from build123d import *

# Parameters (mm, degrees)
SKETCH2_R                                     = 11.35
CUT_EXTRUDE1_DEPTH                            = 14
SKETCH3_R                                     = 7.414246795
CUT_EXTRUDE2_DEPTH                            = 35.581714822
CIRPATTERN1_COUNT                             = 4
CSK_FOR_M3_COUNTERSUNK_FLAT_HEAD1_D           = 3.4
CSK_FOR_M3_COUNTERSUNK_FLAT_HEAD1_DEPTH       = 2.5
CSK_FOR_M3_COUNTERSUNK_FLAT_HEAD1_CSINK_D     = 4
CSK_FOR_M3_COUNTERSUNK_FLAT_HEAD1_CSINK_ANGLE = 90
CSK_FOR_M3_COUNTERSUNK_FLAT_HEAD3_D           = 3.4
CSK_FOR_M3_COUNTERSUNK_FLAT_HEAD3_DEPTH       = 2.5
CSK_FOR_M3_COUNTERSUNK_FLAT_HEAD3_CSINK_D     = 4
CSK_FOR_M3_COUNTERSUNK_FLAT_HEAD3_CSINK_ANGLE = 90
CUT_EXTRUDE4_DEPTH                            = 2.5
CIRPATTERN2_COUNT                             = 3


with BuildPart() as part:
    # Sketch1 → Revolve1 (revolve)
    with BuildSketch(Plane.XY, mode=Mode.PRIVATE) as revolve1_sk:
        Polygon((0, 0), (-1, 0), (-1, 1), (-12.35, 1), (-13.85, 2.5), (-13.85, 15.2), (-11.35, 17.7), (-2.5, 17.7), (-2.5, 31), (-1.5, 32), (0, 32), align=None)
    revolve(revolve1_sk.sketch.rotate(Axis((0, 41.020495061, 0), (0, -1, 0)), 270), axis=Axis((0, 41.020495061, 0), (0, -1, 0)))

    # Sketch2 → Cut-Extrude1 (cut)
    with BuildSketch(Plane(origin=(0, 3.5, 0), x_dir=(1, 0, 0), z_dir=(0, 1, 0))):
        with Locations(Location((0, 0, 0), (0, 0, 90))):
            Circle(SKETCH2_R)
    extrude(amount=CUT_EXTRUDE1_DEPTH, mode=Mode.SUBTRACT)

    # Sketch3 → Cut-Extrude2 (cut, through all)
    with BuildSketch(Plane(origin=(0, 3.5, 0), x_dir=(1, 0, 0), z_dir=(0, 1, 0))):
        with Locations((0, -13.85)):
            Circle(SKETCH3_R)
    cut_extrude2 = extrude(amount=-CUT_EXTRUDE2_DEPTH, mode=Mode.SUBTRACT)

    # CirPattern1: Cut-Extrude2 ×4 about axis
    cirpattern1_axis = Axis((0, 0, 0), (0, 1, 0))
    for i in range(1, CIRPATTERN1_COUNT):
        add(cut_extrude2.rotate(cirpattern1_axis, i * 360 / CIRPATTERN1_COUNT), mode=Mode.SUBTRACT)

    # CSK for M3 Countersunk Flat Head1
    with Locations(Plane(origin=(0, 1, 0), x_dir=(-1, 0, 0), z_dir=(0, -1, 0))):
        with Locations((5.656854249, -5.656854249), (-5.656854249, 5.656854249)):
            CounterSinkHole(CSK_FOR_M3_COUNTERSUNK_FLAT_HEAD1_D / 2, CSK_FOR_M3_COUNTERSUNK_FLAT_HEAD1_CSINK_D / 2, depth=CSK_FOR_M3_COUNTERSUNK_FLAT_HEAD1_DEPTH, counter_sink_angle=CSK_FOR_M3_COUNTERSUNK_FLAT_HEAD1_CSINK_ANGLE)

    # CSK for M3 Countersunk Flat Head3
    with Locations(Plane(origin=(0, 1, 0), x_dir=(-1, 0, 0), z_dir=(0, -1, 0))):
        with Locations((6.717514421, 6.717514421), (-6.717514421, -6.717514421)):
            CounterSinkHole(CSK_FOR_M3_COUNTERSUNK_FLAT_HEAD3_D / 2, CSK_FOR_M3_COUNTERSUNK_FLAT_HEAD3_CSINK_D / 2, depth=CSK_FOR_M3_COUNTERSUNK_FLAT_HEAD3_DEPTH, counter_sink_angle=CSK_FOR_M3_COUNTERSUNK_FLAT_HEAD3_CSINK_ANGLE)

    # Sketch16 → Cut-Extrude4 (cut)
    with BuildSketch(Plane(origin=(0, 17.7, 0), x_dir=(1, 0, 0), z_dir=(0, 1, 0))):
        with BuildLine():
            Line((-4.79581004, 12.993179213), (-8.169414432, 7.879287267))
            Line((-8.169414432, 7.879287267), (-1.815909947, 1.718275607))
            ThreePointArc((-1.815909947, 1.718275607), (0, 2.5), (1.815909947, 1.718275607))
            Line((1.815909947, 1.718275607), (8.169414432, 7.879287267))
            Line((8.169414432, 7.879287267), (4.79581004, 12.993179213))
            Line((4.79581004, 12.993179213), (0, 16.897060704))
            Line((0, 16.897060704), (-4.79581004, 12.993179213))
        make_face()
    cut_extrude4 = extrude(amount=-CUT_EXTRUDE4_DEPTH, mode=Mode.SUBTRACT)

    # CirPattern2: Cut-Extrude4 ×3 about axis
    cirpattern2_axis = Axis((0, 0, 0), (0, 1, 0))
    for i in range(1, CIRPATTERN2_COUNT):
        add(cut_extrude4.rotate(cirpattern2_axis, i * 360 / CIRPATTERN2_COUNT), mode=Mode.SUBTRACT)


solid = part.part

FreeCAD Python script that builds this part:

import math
import FreeCAD as App
import Part
import Sketcher
Q = App.Units.Quantity


def add_polygon(sketch, points):
    """Adds a closed chain of lines whose ends are joined by coincident constraints."""
    first, n = sketch.GeometryCount, len(points)
    for a, b in zip(points, points[1:] + points[:1]):
        sketch.addGeometry(Part.LineSegment(App.Vector(*a, 0), App.Vector(*b, 0)), False)
    for i in range(n):
        sketch.addConstraint(Sketcher.Constraint("Coincident", first + i, 2, first + (i + 1) % n, 1))

doc = App.newDocument("Part")
params = doc.addObject("Spreadsheet::Sheet", "Params")
for row, (alias, value) in enumerate([
    ("sketch1_width", "1 mm"),
    ("sketch1_height", "32 mm"),
    ("sketch1_width2", "1.5 mm"),
    ("sketch1_height2", "13.3 mm"),
    ("sketch1_height3", "12.7 mm"),
    ("revolution_angle", "360 deg"),
    ("sketch2_diameter", "22.7 mm"),
    ("pocket1_length", "14 mm"),
    ("sketch4_diameter", "3.4 mm"),
    ("hole_diameter", "3.4 mm"),
    ("hole_depth", "2.5 mm"),
    ("hole_csink_diameter", "4 mm"),
    ("sketch5_diameter", "3.4 mm"),
    ("hole2_diameter", "3.4 mm"),
    ("hole2_depth", "2.5 mm"),
    ("hole2_csink_diameter", "4 mm"),
    ("sketch6_radius", "2.5 mm"),
    ("pocket3_length", "2.5 mm"),
], start=1):
    params.set(f"A{row}", alias)
    params.set(f"B{row}", "=" + value)
    params.setAlias(f"B{row}", alias)

body = doc.addObject("PartDesign::Body", "Body")

# Sketch on XY plane
sketch1 = body.newObject("Sketcher::SketchObject", "Sketch")
sketch1.AttachmentSupport = (doc.getObject("XY_Plane"), [""])
sketch1.MapMode = "FlatFace"
add_polygon(sketch1, [(-1, 0), (0, 0), (0, 32), (-1.5, 32), (-2.5, 31), (-2.5, 17.7), (-11.3, 17.7), (-13.8, 15.2), (-13.8, 2.5), (-12.3, 1), (-1, 1)])  # lines 0-10
sketch1.addConstraint(Sketcher.Constraint("Horizontal", 0))
sketch1.addConstraint(Sketcher.Constraint("Vertical", 1))
sketch1.addConstraint(Sketcher.Constraint("Horizontal", 2))
sketch1.addConstraint(Sketcher.Constraint("Vertical", 4))
sketch1.addConstraint(Sketcher.Constraint("Horizontal", 5))
sketch1.addConstraint(Sketcher.Constraint("Vertical", 7))
sketch1.addConstraint(Sketcher.Constraint("Horizontal", 9))
sketch1.addConstraint(Sketcher.Constraint("Vertical", 10))
sketch1.addConstraint(Sketcher.Constraint("Coincident", 0, 2, -1, 1))
sketch1.addConstraint(Sketcher.Constraint("Parallel", 3, 6))
sketch1.addConstraint(Sketcher.Constraint("Perpendicular", 6, 8))
sketch1.addConstraint(Sketcher.Constraint("Equal", 0, 10))
sketch1.addConstraint(Sketcher.Constraint("DistanceX", 0, 1, 0, 2, 1.0))
sketch1.addConstraint(Sketcher.Constraint("DistanceY", 1, 1, 1, 2, 32.0))
sketch1.addConstraint(Sketcher.Constraint("Angle", 3, Q("-135 deg")))
sketch1.addConstraint(Sketcher.Constraint("DistanceX", 2, 2, 2, 1, 1.5))
sketch1.addConstraint(Sketcher.Constraint("DistanceY", 4, 2, 4, 1, 13.3))
sketch1.addConstraint(Sketcher.Constraint("DistanceY", 7, 2, 7, 1, 12.7))
sketch1.addConstraint(Sketcher.Constraint("DistanceY", -1, 1, 3, 2, 31.0))
sketch1.addConstraint(Sketcher.Constraint("DistanceX", 8, 2, 5, 2, 1.0))
sketch1.addConstraint(Sketcher.Constraint("DistanceX", 5, 2, 5, 1, 8.85))
sketch1.setExpression("Constraints[23]", "Params.sketch1_width")
sketch1.setExpression("Constraints[24]", "Params.sketch1_height")
sketch1.setExpression("Constraints[26]", "Params.sketch1_width2")
sketch1.setExpression("Constraints[27]", "Params.sketch1_height2")
sketch1.setExpression("Constraints[28]", "Params.sketch1_height3")
revolution = body.newObject("PartDesign::Revolution", "Revolution")
revolution.Profile = sketch1
revolution.ReferenceAxis = (sketch1, ["V_Axis"])
revolution.setExpression("Angle", "Params.revolution_angle")

# Sketch on XZ plane
sketch2 = body.newObject("Sketcher::SketchObject", "Sketch001")
sketch2.AttachmentSupport = (doc.getObject("XZ_Plane"), [""])
sketch2.MapMode = "FlatFace"
sketch2.AttachmentOffset = App.Placement(App.Vector(0, 0, -3.5), App.Rotation())
sketch2.addGeometry(Part.Circle(App.Vector(0, 0, 0), App.Vector(0, 0, 1), 11), False)
sketch2.addConstraint(Sketcher.Constraint("Coincident", 0, 3, -1, 1))
sketch2.addConstraint(Sketcher.Constraint("Diameter", 0, 22.7))
sketch2.setExpression("Constraints[1]", "Params.sketch2_diameter")
pocket1 = body.newObject("PartDesign::Pocket", "Pocket")
pocket1.Profile = sketch2
pocket1.setExpression("Length", "Params.pocket1_length")

# Sketch on XZ plane
sketch3 = body.newObject("Sketcher::SketchObject", "Sketch002")
sketch3.AttachmentSupport = (doc.getObject("XZ_Plane"), [""])
sketch3.MapMode = "FlatFace"
sketch3.AttachmentOffset = App.Placement(App.Vector(0, 0, -3.5), App.Rotation())
sketch3.addGeometry(Part.Circle(App.Vector(0, 14, 0), App.Vector(0, 0, 1), 7), False)
sketch3.addConstraint(Sketcher.Constraint("PointOnObject", 0, 3, -2))
sketch3.addConstraint(Sketcher.Constraint("DistanceY", -1, 1, 0, 3, 13.85))
sketch3.addConstraint(Sketcher.Constraint("Diameter", 0, 14.828494))
pocket2 = body.newObject("PartDesign::Pocket", "Pocket001")
pocket2.Profile = sketch3
pocket2.Type = "ThroughAll"
pocket2.Reversed = True
doc.recompute()

polarpattern = body.newObject("PartDesign::PolarPattern", "PolarPattern")
polarpattern.Originals = [pocket2]
polarpattern.Axis = (doc.getObject("Y_Axis"), [""])
polarpattern.Angle = 360
polarpattern.Occurrences = 4
body.Tip = polarpattern

# Sketch on XZ plane
sketch4 = body.newObject("Sketcher::SketchObject", "Sketch003")
sketch4.AttachmentSupport = (doc.getObject("XZ_Plane"), [""])
sketch4.MapMode = "FlatFace"
sketch4.AttachmentOffset = App.Placement(App.Vector(0, 0, -1), App.Rotation())
sketch4.addGeometry(Part.Circle(App.Vector(-5.7, 5.7, 0), App.Vector(0, 0, 1), 1.7), False)
sketch4.addGeometry(Part.Circle(App.Vector(5.7, -5.7, 0), App.Vector(0, 0, 1), 1.7), False)
sketch4.addConstraint(Sketcher.Constraint("Equal", 0, 1))
sketch4.addConstraint(Sketcher.Constraint("Symmetric", 0, 3, 1, 3, -1, 1))
sketch4.addConstraint(Sketcher.Constraint("Diameter", 0, 3.4))
sketch4.addConstraint(Sketcher.Constraint("DistanceX", 0, 3, 1, 3, 11.313708))
sketch4.addConstraint(Sketcher.Constraint("DistanceY", 1, 3, 0, 3, 11.313708))
sketch4.setExpression("Constraints[2]", "Params.sketch4_diameter")
doc.recompute()
hole = body.newObject("PartDesign::Hole", "Hole")
hole.Profile = sketch4
hole.ThreadType = "None"
hole.setExpression("Diameter", "Params.hole_diameter")
hole.DepthType = "Dimension"
hole.setExpression("Depth", "Params.hole_depth")
hole.DrillPoint = "Flat"
hole.HoleCutType = "Countersink"
hole.setExpression("HoleCutDiameter", "Params.hole_csink_diameter")
hole.HoleCutCountersinkAngle = 90

# Sketch on XZ plane
sketch5 = body.newObject("Sketcher::SketchObject", "Sketch004")
sketch5.AttachmentSupport = (doc.getObject("XZ_Plane"), [""])
sketch5.MapMode = "FlatFace"
sketch5.AttachmentOffset = App.Placement(App.Vector(0, 0, -1), App.Rotation())
sketch5.addGeometry(Part.Circle(App.Vector(-6.7, -6.7, 0), App.Vector(0, 0, 1), 1.7), False)
sketch5.addGeometry(Part.Circle(App.Vector(6.7, 6.7, 0), App.Vector(0, 0, 1), 1.7), False)
sketch5.addConstraint(Sketcher.Constraint("Equal", 0, 1))
sketch5.addConstraint(Sketcher.Constraint("Symmetric", 0, 3, 1, 3, -1, 1))
sketch5.addConstraint(Sketcher.Constraint("Diameter", 0, 3.4))
sketch5.addConstraint(Sketcher.Constraint("DistanceX", 0, 3, 1, 3, 13.435029))
sketch5.addConstraint(Sketcher.Constraint("DistanceY", 0, 3, 1, 3, 13.435029))
sketch5.setExpression("Constraints[2]", "Params.sketch5_diameter")
doc.recompute()
hole2 = body.newObject("PartDesign::Hole", "Hole001")
hole2.Profile = sketch5
hole2.ThreadType = "None"
hole2.setExpression("Diameter", "Params.hole2_diameter")
hole2.DepthType = "Dimension"
hole2.setExpression("Depth", "Params.hole2_depth")
hole2.DrillPoint = "Flat"
hole2.HoleCutType = "Countersink"
hole2.setExpression("HoleCutDiameter", "Params.hole2_csink_diameter")
hole2.HoleCutCountersinkAngle = 90

# Sketch on XZ plane
sketch6 = body.newObject("Sketcher::SketchObject", "Sketch005")
sketch6.AttachmentSupport = (doc.getObject("XZ_Plane"), [""])
sketch6.MapMode = "FlatFace"
sketch6.AttachmentOffset = App.Placement(App.Vector(0, 0, -17.7), App.Rotation())
sketch6.addGeometry(Part.LineSegment(App.Vector(-4.8, -13, 0), App.Vector(-8.2, -7.9, 0)), False)
sketch6.addGeometry(Part.LineSegment(App.Vector(-8.2, -7.9, 0), App.Vector(-1.8, -1.7, 0)), False)
sketch6.addGeometry(Part.ArcOfCircle(Part.Circle(App.Vector(0, 0, 0), App.Vector(0, 0, 1), 2.5), math.radians(-137), math.radians(-43)), False)
sketch6.addGeometry(Part.LineSegment(App.Vector(1.8, -1.7, 0), App.Vector(8.2, -7.9, 0)), False)
sketch6.addGeometry(Part.LineSegment(App.Vector(8.2, -7.9, 0), App.Vector(4.8, -13, 0)), False)
sketch6.addGeometry(Part.LineSegment(App.Vector(4.8, -13, 0), App.Vector(0, -16.9, 0)), False)
sketch6.addGeometry(Part.LineSegment(App.Vector(0, -16.9, 0), App.Vector(-4.8, -13, 0)), False)
sketch6.addConstraint(Sketcher.Constraint("Coincident", 0, 2, 1, 1))
sketch6.addConstraint(Sketcher.Constraint("Coincident", 1, 2, 2, 1))
sketch6.addConstraint(Sketcher.Constraint("Coincident", 2, 2, 3, 1))
sketch6.addConstraint(Sketcher.Constraint("Coincident", 3, 2, 4, 1))
sketch6.addConstraint(Sketcher.Constraint("Coincident", 4, 2, 5, 1))
sketch6.addConstraint(Sketcher.Constraint("Coincident", 5, 2, 6, 1))
sketch6.addConstraint(Sketcher.Constraint("Coincident", 6, 2, 0, 1))
sketch6.addConstraint(Sketcher.Constraint("Coincident", 2, 3, -1, 1))
sketch6.addConstraint(Sketcher.Constraint("Symmetric", 0, 2, 3, 2, -2))
sketch6.addConstraint(Sketcher.Constraint("Symmetric", 4, 2, 6, 2, -2))
sketch6.addConstraint(Sketcher.Constraint("PointOnObject", 5, 2, -2))
sketch6.addConstraint(Sketcher.Constraint("Horizontal", 1, 2, 2, 2))
sketch6.addConstraint(Sketcher.Constraint("Radius", 2, 2.5))
sketch6.addConstraint(Sketcher.Constraint("DistanceX", 2, 2, 4, 2, 2.9799))
sketch6.addConstraint(Sketcher.Constraint("DistanceX", 1, 2, -1, 1, 1.81591))
sketch6.addConstraint(Sketcher.Constraint("DistanceY", 4, 2, -1, 1, 12.993179))
sketch6.addConstraint(Sketcher.Constraint("DistanceY", 5, 2, -1, 1, 16.897061))
sketch6.addConstraint(Sketcher.Constraint("DistanceY", 0, 2, 1, 2, 6.161012))
sketch6.addConstraint(Sketcher.Constraint("DistanceX", 0, 2, 3, 2, 16.338829))
sketch6.setExpression("Constraints[12]", "Params.sketch6_radius")
pocket3 = body.newObject("PartDesign::Pocket", "Pocket002")
pocket3.Profile = sketch6
pocket3.setExpression("Length", "Params.pocket3_length")
pocket3.Reversed = True
doc.recompute()

polarpattern2 = body.newObject("PartDesign::PolarPattern", "PolarPattern001")
polarpattern2.Originals = [pocket3]
polarpattern2.Axis = (doc.getObject("Y_Axis"), [""])
polarpattern2.Angle = 360
polarpattern2.Occurrences = 3
body.Tip = polarpattern2

doc.recompute()
